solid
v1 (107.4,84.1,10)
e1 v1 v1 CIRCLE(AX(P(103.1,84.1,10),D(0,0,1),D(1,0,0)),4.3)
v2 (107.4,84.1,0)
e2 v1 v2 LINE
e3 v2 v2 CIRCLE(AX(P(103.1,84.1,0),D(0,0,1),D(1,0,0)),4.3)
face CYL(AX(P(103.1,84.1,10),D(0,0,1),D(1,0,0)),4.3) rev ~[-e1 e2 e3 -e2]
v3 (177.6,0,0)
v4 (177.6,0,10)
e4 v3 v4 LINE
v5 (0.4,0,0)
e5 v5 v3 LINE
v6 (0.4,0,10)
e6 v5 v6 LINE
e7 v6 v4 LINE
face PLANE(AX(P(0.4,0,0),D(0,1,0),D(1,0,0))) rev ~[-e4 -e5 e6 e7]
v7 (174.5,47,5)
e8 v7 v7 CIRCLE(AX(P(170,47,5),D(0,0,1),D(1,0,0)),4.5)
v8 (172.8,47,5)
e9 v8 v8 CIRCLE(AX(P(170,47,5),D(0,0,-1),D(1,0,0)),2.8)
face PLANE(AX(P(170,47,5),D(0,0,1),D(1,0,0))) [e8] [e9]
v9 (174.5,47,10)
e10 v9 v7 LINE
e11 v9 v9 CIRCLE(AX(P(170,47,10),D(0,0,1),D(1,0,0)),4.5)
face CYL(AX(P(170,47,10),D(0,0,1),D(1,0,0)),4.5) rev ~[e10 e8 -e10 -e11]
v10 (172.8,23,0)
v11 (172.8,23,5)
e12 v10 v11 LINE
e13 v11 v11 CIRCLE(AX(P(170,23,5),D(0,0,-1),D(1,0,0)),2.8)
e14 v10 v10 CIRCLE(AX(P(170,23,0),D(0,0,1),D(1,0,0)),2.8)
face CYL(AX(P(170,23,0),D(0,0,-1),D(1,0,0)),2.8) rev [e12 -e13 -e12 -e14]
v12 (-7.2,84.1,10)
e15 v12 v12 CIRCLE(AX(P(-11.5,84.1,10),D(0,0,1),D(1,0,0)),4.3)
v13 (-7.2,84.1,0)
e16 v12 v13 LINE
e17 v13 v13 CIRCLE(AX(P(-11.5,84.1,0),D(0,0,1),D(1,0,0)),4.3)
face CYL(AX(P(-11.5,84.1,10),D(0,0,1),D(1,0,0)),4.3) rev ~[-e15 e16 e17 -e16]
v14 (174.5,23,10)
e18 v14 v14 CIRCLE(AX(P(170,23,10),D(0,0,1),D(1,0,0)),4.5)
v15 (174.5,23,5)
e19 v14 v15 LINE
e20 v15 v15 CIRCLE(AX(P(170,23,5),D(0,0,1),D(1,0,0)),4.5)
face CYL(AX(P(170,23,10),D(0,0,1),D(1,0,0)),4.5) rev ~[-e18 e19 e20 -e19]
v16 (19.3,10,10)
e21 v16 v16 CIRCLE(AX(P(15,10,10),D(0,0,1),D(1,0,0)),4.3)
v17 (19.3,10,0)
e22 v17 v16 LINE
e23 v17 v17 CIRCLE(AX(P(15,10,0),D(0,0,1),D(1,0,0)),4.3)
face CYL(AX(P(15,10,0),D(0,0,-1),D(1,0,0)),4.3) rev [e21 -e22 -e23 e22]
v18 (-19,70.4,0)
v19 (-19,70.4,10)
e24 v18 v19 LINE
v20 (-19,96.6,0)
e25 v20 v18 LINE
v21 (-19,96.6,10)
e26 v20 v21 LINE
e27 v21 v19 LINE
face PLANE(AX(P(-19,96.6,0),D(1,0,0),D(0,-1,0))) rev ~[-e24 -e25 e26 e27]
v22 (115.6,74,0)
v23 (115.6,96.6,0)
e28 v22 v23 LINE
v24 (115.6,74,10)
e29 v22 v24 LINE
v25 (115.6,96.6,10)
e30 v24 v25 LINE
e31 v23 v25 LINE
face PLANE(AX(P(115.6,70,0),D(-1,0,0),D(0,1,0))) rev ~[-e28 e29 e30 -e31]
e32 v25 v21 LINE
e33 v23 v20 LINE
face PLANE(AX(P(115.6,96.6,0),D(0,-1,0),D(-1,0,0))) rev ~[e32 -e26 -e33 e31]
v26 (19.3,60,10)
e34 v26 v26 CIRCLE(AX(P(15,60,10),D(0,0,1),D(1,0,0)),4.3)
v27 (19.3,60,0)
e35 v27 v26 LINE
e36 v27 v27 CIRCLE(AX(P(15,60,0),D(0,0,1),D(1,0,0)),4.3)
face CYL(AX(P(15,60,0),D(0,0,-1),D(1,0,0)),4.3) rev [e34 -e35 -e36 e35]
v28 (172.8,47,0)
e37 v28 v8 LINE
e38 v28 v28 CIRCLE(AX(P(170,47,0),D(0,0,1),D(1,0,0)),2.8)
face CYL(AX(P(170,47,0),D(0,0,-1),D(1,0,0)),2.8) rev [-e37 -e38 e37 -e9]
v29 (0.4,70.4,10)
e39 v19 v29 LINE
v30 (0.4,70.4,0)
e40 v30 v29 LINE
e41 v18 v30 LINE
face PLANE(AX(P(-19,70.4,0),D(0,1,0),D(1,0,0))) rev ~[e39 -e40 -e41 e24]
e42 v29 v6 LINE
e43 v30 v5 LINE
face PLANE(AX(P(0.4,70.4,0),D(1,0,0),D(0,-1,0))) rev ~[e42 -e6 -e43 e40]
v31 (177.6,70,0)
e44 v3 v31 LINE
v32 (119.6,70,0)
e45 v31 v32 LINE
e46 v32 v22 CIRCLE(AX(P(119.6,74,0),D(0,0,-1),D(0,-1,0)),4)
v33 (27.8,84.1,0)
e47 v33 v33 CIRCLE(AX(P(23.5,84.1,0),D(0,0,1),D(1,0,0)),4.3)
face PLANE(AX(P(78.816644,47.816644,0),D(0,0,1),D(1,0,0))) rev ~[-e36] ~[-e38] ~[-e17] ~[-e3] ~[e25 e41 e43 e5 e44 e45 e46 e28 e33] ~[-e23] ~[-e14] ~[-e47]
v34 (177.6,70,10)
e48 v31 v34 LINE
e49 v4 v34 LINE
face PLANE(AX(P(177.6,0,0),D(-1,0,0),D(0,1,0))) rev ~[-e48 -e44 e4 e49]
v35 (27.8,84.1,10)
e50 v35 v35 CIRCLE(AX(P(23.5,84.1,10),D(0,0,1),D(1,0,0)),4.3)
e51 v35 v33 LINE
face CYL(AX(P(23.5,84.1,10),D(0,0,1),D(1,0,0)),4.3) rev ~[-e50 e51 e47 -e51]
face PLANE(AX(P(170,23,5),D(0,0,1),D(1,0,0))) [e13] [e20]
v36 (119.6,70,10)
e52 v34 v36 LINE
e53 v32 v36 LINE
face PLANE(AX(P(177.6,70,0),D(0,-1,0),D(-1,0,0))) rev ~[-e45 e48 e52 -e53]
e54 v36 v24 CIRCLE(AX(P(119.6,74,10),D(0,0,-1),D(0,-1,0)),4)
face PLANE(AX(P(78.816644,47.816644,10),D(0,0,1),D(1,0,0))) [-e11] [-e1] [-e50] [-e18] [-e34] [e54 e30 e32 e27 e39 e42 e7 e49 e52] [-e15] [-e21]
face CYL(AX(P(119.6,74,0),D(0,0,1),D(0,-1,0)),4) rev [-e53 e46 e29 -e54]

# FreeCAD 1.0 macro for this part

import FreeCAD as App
import Part
import Sketcher
from FreeCAD import Vector


def edges_at(feature, points):
    """Names of the edges that pass closest to the given points."""
    edges = feature.Shape.Edges
    near = lambda p: min(range(len(edges)), key=lambda i: edges[i].distToShape(Part.Vertex(*p))[0])
    return sorted({f"Edge{near(p) + 1}" for p in points})


def add_polygon(sketch, points):
    """Adds a closed chain of lines whose ends are joined by coincident constraints."""
    first, n = sketch.GeometryCount, len(points)
    for a, b in zip(points, points[1:] + points[:1]):
        sketch.addGeometry(Part.LineSegment(App.Vector(*a, 0), App.Vector(*b, 0)), False)
    for i in range(n):
        sketch.addConstraint(Sketcher.Constraint("Coincident", first + i, 2, first + (i + 1) % n, 1))

doc = App.newDocument("Part")
body = doc.addObject("PartDesign::Body", "Body")

# Sketch on XY plane
sketch1 = body.newObject("Sketcher::SketchObject", "Sketch")
sketch1.AttachmentSupport = (doc.getObject("XY_Plane"), [""])
sketch1.MapMode = "FlatFace"
add_polygon(sketch1, [(0.4, 0), (177.6, 0), (177.6, 70), (115.6, 70), (115.6, 96.6), (-19, 96.6), (-19, 70.4), (0.4, 70.4)])  # lines 0-7
sketch1.addGeometry(Part.Circle(Vector(15, 10, 0), Vector(0, 0, 1), 4.3), False)  # 8
sketch1.addGeometry(Part.Circle(Vector(170, 23, 0), Vector(0, 0, 1), 2.8), False)  # 9
sketch1.addGeometry(Part.Circle(Vector(15, 60, 0), Vector(0, 0, 1), 4.3), False)  # 10
sketch1.addGeometry(Part.Circle(Vector(170, 47, 0), Vector(0, 0, 1), 2.8), False)  # 11
sketch1.addConstraint([
    Sketcher.Constraint("Horizontal", 0),
    Sketcher.Constraint("Vertical", 1),
    Sketcher.Constraint("Horizontal", 2),
    Sketcher.Constraint("Vertical", 3),
    Sketcher.Constraint("Horizontal", 4),
    Sketcher.Constraint("Vertical", 5),
    Sketcher.Constraint("Horizontal", 6),
    Sketcher.Constraint("Vertical", 7),
    Sketcher.Constraint("Equal", 8, 10),
    Sketcher.Constraint("Equal", 9, 11),
    Sketcher.Constraint("PointOnObject", 0, 2, -1),
    Sketcher.Constraint("Vertical", 8, 3, 10, 3),
    Sketcher.Constraint("Vertical", 9, 3, 11, 3),
    Sketcher.Constraint("Diameter", 8, 8.6),
    Sketcher.Constraint("Diameter", 9, 5.6),
    Sketcher.Constraint("DistanceX", 2, 2, 2, 1, 62.0),
    Sketcher.Constraint("DistanceY", 1, 1, 1, 2, 70.0),
    Sketcher.Constraint("DistanceX", 0, 1, 0, 2, 177.2),
    Sketcher.Constraint("DistanceX", 4, 2, 4, 1, 134.6),
    Sketcher.Constraint("DistanceY", 3, 1, 3, 2, 26.6),
    Sketcher.Constraint("DistanceY", 5, 2, 5, 1, 26.2),
    Sketcher.Constraint("DistanceX", -1, 1, 8, 3, 15.0),
    Sketcher.Constraint("DistanceY", -1, 1, 8, 3, 10.0),
    Sketcher.Constraint("DistanceX", -1, 1, 9, 3, 170.0),
    Sketcher.Constraint("DistanceY", -1, 1, 9, 3, 23.0),
    Sketcher.Constraint("DistanceY", -1, 1, 10, 3, 60.0),
    Sketcher.Constraint("DistanceY", -1, 1, 11, 3, 47.0),
    Sketcher.Constraint("DistanceX", 4, 2, -1, 1, 19.0),
])
pad1 = body.newObject("PartDesign::Pad", "Pad")
pad1.Profile = sketch1
pad1.Length = 10

# Sketch on XY plane
sketch2 = body.newObject("Sketcher::SketchObject", "Sketch001")
sketch2.AttachmentSupport = (doc.getObject("XY_Plane"), [""])
sketch2.MapMode = "FlatFace"
sketch2.AttachmentOffset = App.Placement(Vector(0, 0, 10), App.Rotation())
sketch2.addGeometry([
    Part.Circle(Vector(170, 47, 0), Vector(0, 0, 1), 4.5),
    Part.Circle(Vector(170, 23, 0), Vector(0, 0, 1), 4.5),
], False)
sketch2.addConstraint([
    Sketcher.Constraint("Equal", 0, 1),
    Sketcher.Constraint("Vertical", 0, 3, 1, 3),
    Sketcher.Constraint("Diameter", 0, 9.0),
    Sketcher.Constraint("DistanceX", -1, 1, 0, 3, 170.0),
    Sketcher.Constraint("DistanceY", -1, 1, 0, 3, 47.0),
    Sketcher.Constraint("DistanceY", -1, 1, 1, 3, 23.0),
])
pocket1 = body.newObject("PartDesign::Pocket", "Pocket")
pocket1.Profile = sketch2
pocket1.Length = 5
doc.recompute()

fillet = body.newObject("PartDesign::Fillet", "Fillet")
fillet.Base = (pocket1, edges_at(pocket1, [(115.6, 70, 5)]))
fillet.Radius = 4

# Sketch on XY plane
sketch3 = body.newObject("Sketcher::SketchObject", "Sketch002")
sketch3.AttachmentSupport = (doc.getObject("XY_Plane"), [""])
sketch3.MapMode = "FlatFace"
sketch3.AttachmentOffset = App.Placement(Vector(0, 0, 10), App.Rotation())
sketch3.addGeometry([
    Part.Circle(Vector(-11.5, 84.1, 0), Vector(0, 0, 1), 4.3),
    Part.Circle(Vector(23.5, 84.1, 0), Vector(0, 0, 1), 4.3),
    Part.Circle(Vector(103.1, 84.1, 0), Vector(0, 0, 1), 4.3),
], False)
sketch3.addConstraint([
    Sketcher.Constraint("Equal", 0, 1),
    Sketcher.Constraint("Equal", 1, 2),
    Sketcher.Constraint("Horizontal", 0, 3, 1, 3),
    Sketcher.Constraint("Horizontal", 1, 3, 2, 3),
    Sketcher.Constraint("Diameter", 0, 8.6),
    Sketcher.Constraint("DistanceX", 0, 3, 1, 3, 35.0),
    Sketcher.Constraint("DistanceX", 0, 3, -1, 1, 11.5),
    Sketcher.Constraint("DistanceY", -1, 1, 0, 3, 84.1),
    Sketcher.Constraint("DistanceX", -1, 1, 2, 3, 103.1),
])
pocket2 = body.newObject("PartDesign::Pocket", "Pocket001")
pocket2.Profile = sketch3
pocket2.Type = "ThroughAll"

doc.recompute()
